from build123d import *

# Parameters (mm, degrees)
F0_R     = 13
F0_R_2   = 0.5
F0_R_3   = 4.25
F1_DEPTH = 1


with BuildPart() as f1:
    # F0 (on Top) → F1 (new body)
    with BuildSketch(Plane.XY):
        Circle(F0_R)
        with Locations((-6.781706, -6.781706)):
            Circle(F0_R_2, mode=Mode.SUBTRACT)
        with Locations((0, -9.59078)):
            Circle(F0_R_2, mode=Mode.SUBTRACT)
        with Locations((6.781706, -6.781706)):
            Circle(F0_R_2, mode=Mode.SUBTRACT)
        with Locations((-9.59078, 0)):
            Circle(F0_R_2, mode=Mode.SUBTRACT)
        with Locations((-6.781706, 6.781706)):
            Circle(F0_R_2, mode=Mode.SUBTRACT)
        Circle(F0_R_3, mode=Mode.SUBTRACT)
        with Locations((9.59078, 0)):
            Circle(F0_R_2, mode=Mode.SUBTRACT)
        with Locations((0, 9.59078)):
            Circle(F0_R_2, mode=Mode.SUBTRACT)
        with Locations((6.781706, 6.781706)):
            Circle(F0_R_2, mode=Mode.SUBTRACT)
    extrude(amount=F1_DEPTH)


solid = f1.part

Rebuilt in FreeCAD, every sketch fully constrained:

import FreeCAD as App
import Part
import Sketcher

V = App.Vector
Q = App.Units.Quantity

doc = App.newDocument("Part")
body = doc.addObject("PartDesign::Body", "Body")

# Sketch on XY plane
sketch1 = body.newObject("Sketcher::SketchObject", "Sketch")
sketch1.AttachmentSupport = (doc.getObject("XY_Plane"), [""])
sketch1.MapMode = "FlatFace"
sketch1.addGeometry([
    Part.Circle(V(0, 0, 0), V(0, 0, 1), 13),  # 0
    Part.Circle(V(-6.8, -6.8, 0), V(0, 0, 1), 0.5),  # 1
    Part.Circle(V(0, -9.6, 0), V(0, 0, 1), 0.5),  # 2
    Part.Circle(V(6.8, -6.8, 0), V(0, 0, 1), 0.5),  # 3
    Part.Circle(V(-9.6, 0, 0), V(0, 0, 1), 0.5),  # 4
    Part.Circle(V(-6.8, 6.8, 0), V(0, 0, 1), 0.5),  # 5
    Part.Circle(V(0, 0, 0), V(0, 0, 1), 4.2),  # 6
    Part.Circle(V(9.6, 0, 0), V(0, 0, 1), 0.5),  # 7
    Part.Circle(V(0, 9.6, 0), V(0, 0, 1), 0.5),  # 8
    Part.Circle(V(6.8, 6.8, 0), V(0, 0, 1), 0.5),  # 9
], False)
sketch1.addConstraint([
    Sketcher.Constraint("Coincident", 0, 3, -1, 1),
    Sketcher.Constraint("Coincident", 6, 3, -1, 1),
    Sketcher.Constraint("Equal", 1, 2),
    Sketcher.Constraint("Equal", 2, 3),
    Sketcher.Constraint("Equal", 3, 4),
    Sketcher.Constraint("Equal", 4, 5),
    Sketcher.Constraint("Equal", 5, 7),
    Sketcher.Constraint("Equal", 7, 8),
    Sketcher.Constraint("Equal", 8, 9),
    Sketcher.Constraint("Symmetric", 3, 3, 5, 3, -1, 1),
    Sketcher.Constraint("Symmetric", 4, 3, 7, 3, -1, 1),
    Sketcher.Constraint("Symmetric", 2, 3, 8, 3, -1, 1),
    Sketcher.Constraint("Symmetric", 1, 3, 9, 3, -1, 1),
    Sketcher.Constraint("Symmetric", 1, 3, 3, 3, -2),
    Sketcher.Constraint("PointOnObject", 2, 3, -2),
    Sketcher.Constraint("PointOnObject", 4, 3, -1),
    Sketcher.Constraint("Diameter", 0, Q("26 mm")),
    Sketcher.Constraint("Diameter", 1, Q("1 mm")),
    Sketcher.Constraint("Diameter", 6, Q("8.5 mm")),
    Sketcher.Constraint("DistanceY", 2, 3, -1, 1, Q("9.59078 mm")),
    Sketcher.Constraint("DistanceX", 4, 3, -1, 1, Q("9.59078 mm")),
    Sketcher.Constraint("DistanceX", 1, 3, -1, 1, Q("6.781706 mm")),
    Sketcher.Constraint("DistanceY", 1, 3, -1, 1, Q("6.781706 mm")),
])
pad1 = body.newObject("PartDesign::Pad", "Pad")
pad1.Profile = sketch1
pad1.Length = 1

doc.recompute()
